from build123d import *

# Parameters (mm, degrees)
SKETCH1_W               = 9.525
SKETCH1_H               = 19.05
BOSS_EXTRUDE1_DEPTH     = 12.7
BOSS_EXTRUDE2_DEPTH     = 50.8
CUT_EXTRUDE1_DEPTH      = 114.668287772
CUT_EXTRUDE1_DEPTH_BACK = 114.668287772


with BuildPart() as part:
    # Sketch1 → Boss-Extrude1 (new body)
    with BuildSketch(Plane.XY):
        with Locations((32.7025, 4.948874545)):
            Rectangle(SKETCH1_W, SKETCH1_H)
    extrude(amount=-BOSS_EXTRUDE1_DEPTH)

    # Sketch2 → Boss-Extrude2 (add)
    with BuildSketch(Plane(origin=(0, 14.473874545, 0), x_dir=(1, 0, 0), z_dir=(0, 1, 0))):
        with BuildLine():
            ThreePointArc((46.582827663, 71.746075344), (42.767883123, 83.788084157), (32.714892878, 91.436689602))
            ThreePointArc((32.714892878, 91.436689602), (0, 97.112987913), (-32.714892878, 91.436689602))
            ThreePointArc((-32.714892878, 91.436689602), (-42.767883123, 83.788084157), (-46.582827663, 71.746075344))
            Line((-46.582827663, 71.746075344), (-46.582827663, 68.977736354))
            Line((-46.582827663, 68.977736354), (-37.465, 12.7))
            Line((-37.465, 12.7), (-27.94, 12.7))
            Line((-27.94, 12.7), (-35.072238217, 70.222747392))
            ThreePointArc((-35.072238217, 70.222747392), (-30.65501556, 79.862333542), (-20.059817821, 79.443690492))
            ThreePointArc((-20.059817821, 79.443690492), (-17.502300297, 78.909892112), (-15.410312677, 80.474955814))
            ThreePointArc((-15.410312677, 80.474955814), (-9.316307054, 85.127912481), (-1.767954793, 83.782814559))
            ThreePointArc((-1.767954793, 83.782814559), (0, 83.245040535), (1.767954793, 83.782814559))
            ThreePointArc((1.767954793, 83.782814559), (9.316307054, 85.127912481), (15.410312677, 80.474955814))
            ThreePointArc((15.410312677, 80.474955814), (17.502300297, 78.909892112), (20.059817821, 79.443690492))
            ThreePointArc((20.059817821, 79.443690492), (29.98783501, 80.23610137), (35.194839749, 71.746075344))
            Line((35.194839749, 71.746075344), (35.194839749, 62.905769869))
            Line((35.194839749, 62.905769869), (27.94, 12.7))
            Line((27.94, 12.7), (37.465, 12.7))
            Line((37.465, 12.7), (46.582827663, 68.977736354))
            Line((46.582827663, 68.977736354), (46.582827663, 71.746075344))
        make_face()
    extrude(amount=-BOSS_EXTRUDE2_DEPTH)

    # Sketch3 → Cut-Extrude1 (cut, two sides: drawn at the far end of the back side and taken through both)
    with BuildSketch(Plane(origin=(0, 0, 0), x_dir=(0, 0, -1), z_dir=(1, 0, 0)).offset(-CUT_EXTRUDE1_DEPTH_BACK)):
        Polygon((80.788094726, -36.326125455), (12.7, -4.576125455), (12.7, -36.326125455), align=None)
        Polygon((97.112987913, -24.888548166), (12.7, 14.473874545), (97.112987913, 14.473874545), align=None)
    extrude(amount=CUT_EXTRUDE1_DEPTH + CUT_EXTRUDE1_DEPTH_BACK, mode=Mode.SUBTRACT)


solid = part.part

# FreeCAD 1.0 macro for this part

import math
import FreeCAD as App
import Part
import Sketcher
from FreeCAD import Vector
Q = App.Units.Quantity


def add_polygon(sketch, points):
    """Adds a closed chain of lines whose ends are joined by coincident constraints."""
    first, n = sketch.GeometryCount, len(points)
    for a, b in zip(points, points[1:] + points[:1]):
        sketch.addGeometry(Part.LineSegment(App.Vector(*a, 0), App.Vector(*b, 0)), False)
    for i in range(n):
        sketch.addConstraint(Sketcher.Constraint("Coincident", first + i, 2, first + (i + 1) % n, 1))

doc = App.newDocument("Part")
body = doc.addObject("PartDesign::Body", "Body")

sketch1 = body.newObject("Sketcher::SketchObject", "Sketch")
sketch1.AttachmentSupport = (doc.getObject("XY_Plane"), [""])
sketch1.MapMode = "FlatFace"
add_polygon(sketch1, [(28, 14), (28, -5), (37, -5), (37, 14)])
sketch1.addConstraint([
    Sketcher.Constraint("Vertical", 0),
    Sketcher.Constraint("Horizontal", 1),
    Sketcher.Constraint("Vertical", 2),
    Sketcher.Constraint("Horizontal", 3),
    Sketcher.Constraint("DistanceY", 0, 2, 0, 1, Q("0.75 in")),
    Sketcher.Constraint("DistanceX", -1, 1, 0, 2, Q("1.1 in")),
    Sketcher.Constraint("DistanceX", 1, 1, 1, 2, Q("0.375 in")),
    Sketcher.Constraint("DistanceY", 0, 2, -1, 1, Q("4.576125 mm")),
])
pad1 = body.newObject("PartDesign::Pad", "Pad")
pad1.Profile = sketch1
pad1.Length = Q("0.5 in")
pad1.Reversed = True

sketch2 = body.newObject("Sketcher::SketchObject", "Sketch001")
sketch2.AttachmentSupport = (doc.getObject("XZ_Plane"), [""])
sketch2.MapMode = "FlatFace"
sketch2.AttachmentOffset = App.Placement(Vector(0, 0, -14.473875), App.Rotation())
sketch2.addGeometry([
    Part.ArcOfCircle(Part.Circle(Vector(25.7, -71.7, 0), Vector(0, 0, 1), 20.9), math.radians(-70), math.radians(0)),
    Part.ArcOfCircle(Part.Circle(Vector(0, 0, 0), Vector(0, 0, 1), 97.1), math.radians(-110), math.radians(-70)),
    Part.ArcOfCircle(Part.Circle(Vector(-25.7, -71.7, 0), Vector(0, 0, 1), 20.9), math.radians(-180), math.radians(-110)),
    Part.LineSegment(Vector(-46.6, -71.7, 0), Vector(-46.6, -69, 0)),
    Part.LineSegment(Vector(-46.6, -69, 0), Vector(-37.5, -12.7, 0)),
    Part.LineSegment(Vector(-37.5, -12.7, 0), Vector(-27.9, -12.7, 0)),
    Part.LineSegment(Vector(-27.9, -12.7, 0), Vector(-35.1, -70.2, 0)),
    Part.ArcOfCircle(Part.Circle(Vector(-25.7, -71.7, 0), Vector(0, 0, 1), 9.5), math.radians(171), math.radians(306)),
    Part.ArcOfCircle(Part.Circle(Vector(-18.2, -82, 0), Vector(0, 0, 1), 3.2), math.radians(29), math.radians(126)),
    Part.ArcOfCircle(Part.Circle(Vector(-7.1, -75.9, 0), Vector(0, 0, 1), 9.5), math.radians(-151), math.radians(-56)),
    Part.ArcOfCircle(Part.Circle(Vector(0, -86.4, 0), Vector(0, 0, 1), 3.2), math.radians(56), math.radians(124)),
    Part.ArcOfCircle(Part.Circle(Vector(7.1, -75.9, 0), Vector(0, 0, 1), 9.5), math.radians(-124), math.radians(-29)),
    Part.ArcOfCircle(Part.Circle(Vector(18.2, -82, 0), Vector(0, 0, 1), 3.2), math.radians(54), math.radians(151)),
    Part.ArcOfCircle(Part.Circle(Vector(25.7, -71.7, 0), Vector(0, 0, 1), 9.5), math.radians(-126), math.radians(0)),
    Part.LineSegment(Vector(35.2, -71.7, 0), Vector(35.2, -62.9, 0)),
    Part.LineSegment(Vector(35.2, -62.9, 0), Vector(27.9, -12.7, 0)),
    Part.LineSegment(Vector(27.9, -12.7, 0), Vector(37.5, -12.7, 0)),
    Part.LineSegment(Vector(37.5, -12.7, 0), Vector(46.6, -69, 0)),
    Part.LineSegment(Vector(46.6, -69, 0), Vector(46.6, -71.7, 0)),
], False)
sketch2.addConstraint([
    Sketcher.Constraint("Tangent", 0, 1, 1, 2),
    Sketcher.Constraint("Tangent", 1, 1, 2, 2),
    Sketcher.Constraint("Tangent", 2, 1, 3, 1),
    Sketcher.Constraint("Coincident", 3, 2, 4, 1),
    Sketcher.Constraint("Coincident", 4, 2, 5, 1),
    Sketcher.Constraint("Coincident", 5, 2, 6, 1),
    Sketcher.Constraint("Coincident", 6, 2, 7, 1),
    Sketcher.Constraint("Tangent", 7, 2, 8, 2),
    Sketcher.Constraint("Tangent", 8, 1, 9, 1),
    Sketcher.Constraint("Tangent", 9, 2, 10, 2),
    Sketcher.Constraint("Tangent", 10, 1, 11, 1),
    Sketcher.Constraint("Tangent", 11, 2, 12, 2),
    Sketcher.Constraint("Tangent", 12, 1, 13, 1),
    Sketcher.Constraint("Tangent", 13, 2, 14, 1),
    Sketcher.Constraint("Coincident", 14, 2, 15, 1),
    Sketcher.Constraint("Coincident", 15, 2, 16, 1),
    Sketcher.Constraint("Coincident", 16, 2, 17, 1),
    Sketcher.Constraint("Coincident", 17, 2, 18, 1),
    Sketcher.Constraint("Tangent", 18, 2, 0, 2),
    Sketcher.Constraint("Vertical", 3),
    Sketcher.Constraint("Horizontal", 5),
    Sketcher.Constraint("Vertical", 14),
    Sketcher.Constraint("Horizontal", 16),
    Sketcher.Constraint("Vertical", 18),
    Sketcher.Constraint("Coincident", 1, 3, -1, 1),
    Sketcher.Constraint("Coincident", 7, 3, 2, 3),
    Sketcher.Constraint("Coincident", 13, 3, 0, 3),
    Sketcher.Constraint("Equal", 0, 2),
    Sketcher.Constraint("Equal", 7, 9),
    Sketcher.Constraint("Equal", 8, 10),
    Sketcher.Constraint("Equal", 9, 11),
    Sketcher.Constraint("Equal", 10, 12),
    Sketcher.Constraint("Equal", 11, 13),
    Sketcher.Constraint("Symmetric", 9, 3, 11, 3, -2),
    Sketcher.Constraint("Symmetric", 5, 2, 15, 2, -2),
    Sketcher.Constraint("Symmetric", 3, 2, 17, 2, -2),
    Sketcher.Constraint("Equal", 5, 16),
    Sketcher.Constraint("Radius", 7, Q("0.375 in")),
    Sketcher.Constraint("Radius", 8, Q("0.125 in")),
    Sketcher.Constraint("DistanceY", 4, 2, -1, 1, Q("0.5 in")),
    Sketcher.Constraint("DistanceX", 5, 2, -1, 1, Q("1.1 in")),
    Sketcher.Constraint("DistanceX", 5, 1, 5, 2, Q("0.375 in")),
    Sketcher.Constraint("Radius", 0, Q("20.912988 mm")),
    Sketcher.Constraint("Radius", 1, Q("97.112988 mm")),
    Sketcher.Constraint("DistanceY", 3, 1, 3, 2, Q("2.768339 mm")),
    Sketcher.Constraint("DistanceX", 6, 2, 2, 3, Q("9.402398 mm")),
    Sketcher.Constraint("DistanceX", 7, 2, 9, 3, Q("12.987999 mm")),
    Sketcher.Constraint("DistanceY", 1, 1, 7, 2, Q("11.992999 mm")),
    Sketcher.Constraint("Distance", 15, Q("50.727232 mm")),
    Sketcher.Constraint("DistanceY", 14, 1, 14, 2, Q("8.840305 mm")),
])
pad2 = body.newObject("PartDesign::Pad", "Pad001")
pad2.Profile = sketch2
pad2.Length = Q("2 in")

sketch3 = body.newObject("Sketcher::SketchObject", "Sketch002")
sketch3.AttachmentSupport = (doc.getObject("YZ_Plane"), [""])
sketch3.MapMode = "FlatFace"
add_polygon(sketch3, [(-36, -81), (-5, -13), (-36, -13)])
add_polygon(sketch3, [(14, -13), (-25, -97), (14, -97)])
sketch3.addConstraint([
    Sketcher.Constraint("Horizontal", 1),
    Sketcher.Constraint("Vertical", 2),
    Sketcher.Constraint("Horizontal", 4),
    Sketcher.Constraint("Vertical", 5),
    Sketcher.Constraint("Parallel", 0, 3),
    Sketcher.Constraint("Horizontal", 1, 2, 5, 2),
    Sketcher.Constraint("Angle", 0, Q("65 deg")),
    Sketcher.Constraint("DistanceX", 2, 2, 4, 2, Q("2 in")),
    Sketcher.Constraint("DistanceX", 1, 2, 1, 1, Q("1.25 in")),
    Sketcher.Constraint("DistanceY", 0, 2, -1, 1, Q("0.5 in")),
    Sketcher.Constraint("DistanceX", 4, 1, 4, 2, Q("39.362423 mm")),
    Sketcher.Constraint("DistanceX", 3, 2, -1, 1, Q("24.888548 mm")),
])
pocket1 = body.newObject("PartDesign::Pocket", "Pocket")
pocket1.Profile = sketch3
pocket1.Type = "ThroughAll"
pocket1.Midplane = True

doc.recompute()
